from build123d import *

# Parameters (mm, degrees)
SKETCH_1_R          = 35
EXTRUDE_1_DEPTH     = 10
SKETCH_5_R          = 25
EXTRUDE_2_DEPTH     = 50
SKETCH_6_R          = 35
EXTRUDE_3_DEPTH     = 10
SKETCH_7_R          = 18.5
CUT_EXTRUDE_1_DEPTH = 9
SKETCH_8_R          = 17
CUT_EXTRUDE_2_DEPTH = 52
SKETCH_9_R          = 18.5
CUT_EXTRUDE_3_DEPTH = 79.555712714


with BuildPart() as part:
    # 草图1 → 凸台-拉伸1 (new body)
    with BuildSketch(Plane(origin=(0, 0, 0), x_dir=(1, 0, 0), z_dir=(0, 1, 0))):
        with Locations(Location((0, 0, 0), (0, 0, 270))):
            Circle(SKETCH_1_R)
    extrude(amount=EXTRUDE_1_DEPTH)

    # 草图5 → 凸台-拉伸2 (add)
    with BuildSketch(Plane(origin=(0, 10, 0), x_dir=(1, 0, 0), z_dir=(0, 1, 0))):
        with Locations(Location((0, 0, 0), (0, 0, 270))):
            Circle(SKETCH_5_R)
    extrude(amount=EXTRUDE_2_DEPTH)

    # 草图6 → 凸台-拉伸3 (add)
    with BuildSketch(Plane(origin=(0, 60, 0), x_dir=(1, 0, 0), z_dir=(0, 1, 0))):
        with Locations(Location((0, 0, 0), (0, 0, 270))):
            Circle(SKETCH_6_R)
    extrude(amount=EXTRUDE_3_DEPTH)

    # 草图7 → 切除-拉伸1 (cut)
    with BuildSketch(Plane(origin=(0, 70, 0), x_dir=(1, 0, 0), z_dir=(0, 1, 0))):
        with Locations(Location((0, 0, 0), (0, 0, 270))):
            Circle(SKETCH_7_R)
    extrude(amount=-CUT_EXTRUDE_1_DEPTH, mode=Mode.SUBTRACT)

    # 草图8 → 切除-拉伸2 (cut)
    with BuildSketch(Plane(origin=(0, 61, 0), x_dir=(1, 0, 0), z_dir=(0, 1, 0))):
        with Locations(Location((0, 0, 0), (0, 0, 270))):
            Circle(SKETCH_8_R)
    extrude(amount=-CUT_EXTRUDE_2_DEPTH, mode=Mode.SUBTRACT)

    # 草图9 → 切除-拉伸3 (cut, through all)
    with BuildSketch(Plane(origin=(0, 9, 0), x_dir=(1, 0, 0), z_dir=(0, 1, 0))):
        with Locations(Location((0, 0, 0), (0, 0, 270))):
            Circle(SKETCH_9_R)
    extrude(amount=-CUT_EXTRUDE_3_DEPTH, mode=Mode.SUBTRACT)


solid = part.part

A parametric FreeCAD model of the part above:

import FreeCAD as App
import Part
import Sketcher
Q = App.Units.Quantity

doc = App.newDocument("Part")
body = doc.addObject("PartDesign::Body", "Body")

# Sketch on XZ plane
sketch1 = doc.addObject("Sketcher::SketchObject", "Sketch")
body.addObject(sketch1)
sketch1.AttachmentSupport = (doc.XZ_Plane, [""])
sketch1.MapMode = "FlatFace"
sketch1.addGeometry(Part.Circle(App.Vector(0, 0, 0), App.Vector(0, 0, 1), 35), False)
sketch1.addConstraint([
    Sketcher.Constraint("Coincident", 0, 3, -1, 1),
    Sketcher.Constraint("Diameter", 0, Q("70 mm")),
])
pad1 = doc.addObject("PartDesign::Pad", "Pad")
body.addObject(pad1)
pad1.Profile = sketch1
pad1.Length = 10
pad1.Reversed = True

# Sketch on XZ plane
sketch2 = doc.addObject("Sketcher::SketchObject", "Sketch001")
body.addObject(sketch2)
sketch2.AttachmentSupport = (doc.XZ_Plane, [""])
sketch2.MapMode = "FlatFace"
sketch2.AttachmentOffset = App.Placement(App.Vector(0, 0, -10), App.Rotation())
sketch2.addGeometry(Part.Circle(App.Vector(0, 0, 0), App.Vector(0, 0, 1), 25), False)
sketch2.addConstraint([
    Sketcher.Constraint("Coincident", 0, 3, -1, 1),
    Sketcher.Constraint("Diameter", 0, Q("50 mm")),
])
pad2 = doc.addObject("PartDesign::Pad", "Pad001")
body.addObject(pad2)
pad2.Profile = sketch2
pad2.Length = 50
pad2.Reversed = True

# Sketch on XZ plane
sketch3 = doc.addObject("Sketcher::SketchObject", "Sketch002")
body.addObject(sketch3)
sketch3.AttachmentSupport = (doc.XZ_Plane, [""])
sketch3.MapMode = "FlatFace"
sketch3.AttachmentOffset = App.Placement(App.Vector(0, 0, -60), App.Rotation())
sketch3.addGeometry(Part.Circle(App.Vector(0, 0, 0), App.Vector(0, 0, 1), 35), False)
sketch3.addConstraint([
    Sketcher.Constraint("Coincident", 0, 3, -1, 1),
    Sketcher.Constraint("Diameter", 0, Q("70 mm")),
])
pad3 = doc.addObject("PartDesign::Pad", "Pad002")
body.addObject(pad3)
pad3.Profile = sketch3
pad3.Length = 10
pad3.Reversed = True

# Sketch on XZ plane
sketch4 = doc.addObject("Sketcher::SketchObject", "Sketch003")
body.addObject(sketch4)
sketch4.AttachmentSupport = (doc.XZ_Plane, [""])
sketch4.MapMode = "FlatFace"
sketch4.AttachmentOffset = App.Placement(App.Vector(0, 0, -70), App.Rotation())
sketch4.addGeometry(Part.Circle(App.Vector(0, 0, 0), App.Vector(0, 0, 1), 18), False)
sketch4.addConstraint([
    Sketcher.Constraint("Coincident", 0, 3, -1, 1),
    Sketcher.Constraint("Diameter", 0, Q("37 mm")),
])
pocket1 = doc.addObject("PartDesign::Pocket", "Pocket")
body.addObject(pocket1)
pocket1.Profile = sketch4
pocket1.Length = 9
pocket1.Reversed = True

# Sketch on XZ plane
sketch5 = doc.addObject("Sketcher::SketchObject", "Sketch004")
body.addObject(sketch5)
sketch5.AttachmentSupport = (doc.XZ_Plane, [""])
sketch5.MapMode = "FlatFace"
sketch5.AttachmentOffset = App.Placement(App.Vector(0, 0, -61), App.Rotation())
sketch5.addGeometry(Part.Circle(App.Vector(0, 0, 0), App.Vector(0, 0, 1), 17), False)
sketch5.addConstraint([
    Sketcher.Constraint("Coincident", 0, 3, -1, 1),
    Sketcher.Constraint("Diameter", 0, Q("34 mm")),
])
pocket2 = doc.addObject("PartDesign::Pocket", "Pocket001")
body.addObject(pocket2)
pocket2.Profile = sketch5
pocket2.Length = 52
pocket2.Reversed = True

# Sketch on XZ plane
sketch6 = doc.addObject("Sketcher::SketchObject", "Sketch005")
body.addObject(sketch6)
sketch6.AttachmentSupport = (doc.XZ_Plane, [""])
sketch6.MapMode = "FlatFace"
sketch6.AttachmentOffset = App.Placement(App.Vector(0, 0, -9), App.Rotation())
sketch6.addGeometry(Part.Circle(App.Vector(0, 0, 0), App.Vector(0, 0, 1), 18), False)
sketch6.addConstraint([
    Sketcher.Constraint("Coincident", 0, 3, -1, 1),
    Sketcher.Constraint("Diameter", 0, Q("37 mm")),
])
pocket3 = doc.addObject("PartDesign::Pocket", "Pocket002")
body.addObject(pocket3)
pocket3.Profile = sketch6
pocket3.Type = "ThroughAll"
pocket3.Reversed = True

doc.recompute()
